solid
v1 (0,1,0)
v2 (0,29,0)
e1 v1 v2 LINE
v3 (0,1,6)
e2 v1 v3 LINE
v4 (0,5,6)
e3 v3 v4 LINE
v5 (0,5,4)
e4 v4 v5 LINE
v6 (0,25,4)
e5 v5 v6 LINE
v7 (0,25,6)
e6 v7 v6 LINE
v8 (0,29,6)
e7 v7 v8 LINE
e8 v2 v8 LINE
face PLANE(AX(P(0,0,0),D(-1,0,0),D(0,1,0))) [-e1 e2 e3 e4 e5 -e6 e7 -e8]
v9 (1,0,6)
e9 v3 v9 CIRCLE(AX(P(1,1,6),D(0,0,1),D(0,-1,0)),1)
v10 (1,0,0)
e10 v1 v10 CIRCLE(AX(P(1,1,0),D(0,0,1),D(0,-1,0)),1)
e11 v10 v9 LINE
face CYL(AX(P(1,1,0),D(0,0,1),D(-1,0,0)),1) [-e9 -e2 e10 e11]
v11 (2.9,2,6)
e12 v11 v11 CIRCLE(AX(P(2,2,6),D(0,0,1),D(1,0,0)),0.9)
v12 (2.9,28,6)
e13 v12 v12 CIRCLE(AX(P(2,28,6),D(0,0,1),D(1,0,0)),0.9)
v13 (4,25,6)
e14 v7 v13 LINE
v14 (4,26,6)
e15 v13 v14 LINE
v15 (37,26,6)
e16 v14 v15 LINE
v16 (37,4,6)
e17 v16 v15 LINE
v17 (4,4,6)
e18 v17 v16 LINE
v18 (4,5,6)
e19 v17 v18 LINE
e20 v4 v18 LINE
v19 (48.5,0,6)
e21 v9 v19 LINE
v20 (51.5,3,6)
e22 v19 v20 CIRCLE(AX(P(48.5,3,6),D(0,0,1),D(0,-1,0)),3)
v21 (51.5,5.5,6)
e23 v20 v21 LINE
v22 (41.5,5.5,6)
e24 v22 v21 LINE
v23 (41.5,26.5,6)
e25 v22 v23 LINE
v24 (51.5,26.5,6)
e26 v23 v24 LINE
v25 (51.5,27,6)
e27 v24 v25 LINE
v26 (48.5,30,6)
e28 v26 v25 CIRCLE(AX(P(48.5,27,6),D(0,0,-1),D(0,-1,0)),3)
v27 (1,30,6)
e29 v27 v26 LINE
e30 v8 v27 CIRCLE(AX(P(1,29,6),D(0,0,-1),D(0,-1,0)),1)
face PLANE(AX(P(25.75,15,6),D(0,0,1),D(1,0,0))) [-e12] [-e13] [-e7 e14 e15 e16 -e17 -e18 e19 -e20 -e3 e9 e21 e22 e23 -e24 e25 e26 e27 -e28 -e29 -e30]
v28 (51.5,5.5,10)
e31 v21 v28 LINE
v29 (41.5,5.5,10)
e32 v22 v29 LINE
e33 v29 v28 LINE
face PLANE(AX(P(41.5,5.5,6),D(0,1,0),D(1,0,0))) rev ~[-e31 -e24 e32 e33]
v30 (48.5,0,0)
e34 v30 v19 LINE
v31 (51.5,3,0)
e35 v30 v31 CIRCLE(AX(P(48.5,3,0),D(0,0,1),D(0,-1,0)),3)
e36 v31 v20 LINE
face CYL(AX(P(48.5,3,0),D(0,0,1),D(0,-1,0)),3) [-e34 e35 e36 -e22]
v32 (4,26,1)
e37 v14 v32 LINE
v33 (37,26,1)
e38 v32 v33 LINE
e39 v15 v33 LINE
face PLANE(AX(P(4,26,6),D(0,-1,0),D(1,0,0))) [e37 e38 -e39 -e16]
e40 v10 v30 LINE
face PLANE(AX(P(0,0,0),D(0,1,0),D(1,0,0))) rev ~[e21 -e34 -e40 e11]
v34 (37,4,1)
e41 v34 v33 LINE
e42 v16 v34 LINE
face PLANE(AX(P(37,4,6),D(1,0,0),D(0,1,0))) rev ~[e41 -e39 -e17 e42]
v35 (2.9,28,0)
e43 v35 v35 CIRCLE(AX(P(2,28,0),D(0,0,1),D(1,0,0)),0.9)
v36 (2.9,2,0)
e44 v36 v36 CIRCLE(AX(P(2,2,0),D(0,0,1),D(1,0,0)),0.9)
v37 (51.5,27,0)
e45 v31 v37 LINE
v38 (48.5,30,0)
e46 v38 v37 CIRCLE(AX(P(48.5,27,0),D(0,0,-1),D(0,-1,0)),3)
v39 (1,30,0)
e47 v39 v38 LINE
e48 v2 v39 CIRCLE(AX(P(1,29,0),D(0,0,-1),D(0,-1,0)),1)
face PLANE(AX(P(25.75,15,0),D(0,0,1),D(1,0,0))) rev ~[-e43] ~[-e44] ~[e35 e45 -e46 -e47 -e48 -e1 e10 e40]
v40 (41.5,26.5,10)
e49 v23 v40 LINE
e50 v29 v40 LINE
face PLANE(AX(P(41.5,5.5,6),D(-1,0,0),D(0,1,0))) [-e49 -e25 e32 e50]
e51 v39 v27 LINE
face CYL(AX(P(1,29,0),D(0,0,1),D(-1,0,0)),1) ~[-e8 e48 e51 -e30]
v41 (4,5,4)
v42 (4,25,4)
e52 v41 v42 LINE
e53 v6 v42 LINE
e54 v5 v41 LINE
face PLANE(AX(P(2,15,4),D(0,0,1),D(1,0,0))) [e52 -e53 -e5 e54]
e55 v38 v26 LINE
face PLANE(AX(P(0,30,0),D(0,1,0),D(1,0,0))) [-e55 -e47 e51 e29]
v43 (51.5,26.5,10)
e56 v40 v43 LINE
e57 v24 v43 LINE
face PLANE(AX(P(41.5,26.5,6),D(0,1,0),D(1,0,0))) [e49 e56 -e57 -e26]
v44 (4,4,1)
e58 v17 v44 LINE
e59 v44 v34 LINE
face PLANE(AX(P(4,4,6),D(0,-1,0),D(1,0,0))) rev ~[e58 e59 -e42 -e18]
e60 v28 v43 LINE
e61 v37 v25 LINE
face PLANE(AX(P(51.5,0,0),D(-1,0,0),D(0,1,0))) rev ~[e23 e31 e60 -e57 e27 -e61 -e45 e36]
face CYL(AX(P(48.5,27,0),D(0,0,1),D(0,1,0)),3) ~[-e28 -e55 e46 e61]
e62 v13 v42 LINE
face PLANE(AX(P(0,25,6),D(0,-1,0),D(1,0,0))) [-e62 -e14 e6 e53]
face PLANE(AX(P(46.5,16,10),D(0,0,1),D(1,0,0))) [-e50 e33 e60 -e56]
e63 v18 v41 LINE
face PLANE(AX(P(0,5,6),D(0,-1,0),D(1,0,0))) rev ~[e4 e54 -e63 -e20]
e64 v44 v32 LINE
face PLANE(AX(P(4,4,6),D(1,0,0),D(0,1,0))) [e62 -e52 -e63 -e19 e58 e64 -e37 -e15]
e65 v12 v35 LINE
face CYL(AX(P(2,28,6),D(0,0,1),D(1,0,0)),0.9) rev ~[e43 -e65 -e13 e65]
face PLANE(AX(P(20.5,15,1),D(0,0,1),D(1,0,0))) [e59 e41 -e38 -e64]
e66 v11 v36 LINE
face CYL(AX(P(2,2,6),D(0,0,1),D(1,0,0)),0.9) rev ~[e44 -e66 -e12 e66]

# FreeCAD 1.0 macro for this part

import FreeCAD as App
import Part
import Sketcher

V = App.Vector
Q = App.Units.Quantity


def edges_at(feature, points):
    """Names of the edges that pass closest to the given points."""
    edges = feature.Shape.Edges
    near = lambda p: min(range(len(edges)), key=lambda i: edges[i].distToShape(Part.Vertex(*p))[0])
    return sorted({f"Edge{near(p) + 1}" for p in points})

doc = App.newDocument("Part")
body = doc.addObject("PartDesign::Body", "Body")

sketch1 = body.newObject("Sketcher::SketchObject", "Sketch")
sketch1.AttachmentSupport = (doc.getObject("XY_Plane"), [""])
sketch1.MapMode = "FlatFace"
sketch1.addGeometry([
    Part.LineSegment(V(0, 30, 0), V(0, 0, 0)),
    Part.LineSegment(V(0, 0, 0), V(52, 0, 0)),
    Part.LineSegment(V(52, 0, 0), V(52, 30, 0)),
    Part.LineSegment(V(52, 30, 0), V(0, 30, 0)),
], False)
sketch1.addConstraint([
    Sketcher.Constraint("Coincident", 0, 2, 1, 1),
    Sketcher.Constraint("Coincident", 1, 2, 2, 1),
    Sketcher.Constraint("Coincident", 2, 2, 3, 1),
    Sketcher.Constraint("Coincident", 3, 2, 0, 1),
    Sketcher.Constraint("Vertical", 0),
    Sketcher.Constraint("Horizontal", 1),
    Sketcher.Constraint("Vertical", 2),
    Sketcher.Constraint("Horizontal", 3),
    Sketcher.Constraint("Coincident", 0, 2, -1, 1),
    Sketcher.Constraint("DistanceY", 0, 2, 0, 1, Q("30 mm")),
    Sketcher.Constraint("DistanceX", 1, 1, 1, 2, Q("51.5 mm")),
])
pad1 = body.newObject("PartDesign::Pad", "Pad")
pad1.Profile = sketch1
pad1.Length = 6

sketch2 = body.newObject("Sketcher::SketchObject", "Sketch001")
sketch2.AttachmentSupport = (doc.getObject("XY_Plane"), [""])
sketch2.MapMode = "FlatFace"
sketch2.AttachmentOffset = App.Placement(V(0, 0, 6), App.Rotation())
sketch2.addGeometry([
    Part.LineSegment(V(4, 26, 0), V(4, 4, 0)),
    Part.LineSegment(V(4, 4, 0), V(37, 4, 0)),
    Part.LineSegment(V(37, 4, 0), V(37, 26, 0)),
    Part.LineSegment(V(37, 26, 0), V(4, 26, 0)),
], False)
sketch2.addConstraint([
    Sketcher.Constraint("Coincident", 0, 2, 1, 1),
    Sketcher.Constraint("Coincident", 1, 2, 2, 1),
    Sketcher.Constraint("Coincident", 2, 2, 3, 1),
    Sketcher.Constraint("Coincident", 3, 2, 0, 1),
    Sketcher.Constraint("Vertical", 0),
    Sketcher.Constraint("Horizontal", 1),
    Sketcher.Constraint("Vertical", 2),
    Sketcher.Constraint("Horizontal", 3),
    Sketcher.Constraint("DistanceX", 1, 1, 1, 2, Q("33 mm")),
    Sketcher.Constraint("DistanceY", 0, 2, 0, 1, Q("22 mm")),
    Sketcher.Constraint("DistanceX", -1, 1, 0, 2, Q("4 mm")),
    Sketcher.Constraint("DistanceY", -1, 1, 0, 2, Q("4 mm")),
])
pocket1 = body.newObject("PartDesign::Pocket", "Pocket")
pocket1.Profile = sketch2
pocket1.Length = 5

sketch3 = body.newObject("Sketcher::SketchObject", "Sketch002")
sketch3.AttachmentSupport = (doc.getObject("XY_Plane"), [""])
sketch3.MapMode = "FlatFace"
sketch3.AttachmentOffset = App.Placement(V(0, 0, 6), App.Rotation())
sketch3.addGeometry([
    Part.Circle(V(2, 28, 0), V(0, 0, 1), 0.9),
    Part.Circle(V(2, 2, 0), V(0, 0, 1), 0.9),
], False)
sketch3.addConstraint([
    Sketcher.Constraint("Equal", 0, 1),
    Sketcher.Constraint("Vertical", 0, 3, 1, 3),
    Sketcher.Constraint("Diameter", 0, Q("1.8 mm")),
    Sketcher.Constraint("DistanceX", -1, 1, 0, 3, Q("2 mm")),
    Sketcher.Constraint("DistanceY", -1, 1, 0, 3, Q("28 mm")),
    Sketcher.Constraint("DistanceY", -1, 1, 1, 3, Q("2 mm")),
])
pocket2 = body.newObject("PartDesign::Pocket", "Pocket001")
pocket2.Profile = sketch3
pocket2.Type = "ThroughAll"

sketch4 = body.newObject("Sketcher::SketchObject", "Sketch003")
sketch4.AttachmentSupport = (doc.getObject("XY_Plane"), [""])
sketch4.MapMode = "FlatFace"
sketch4.AttachmentOffset = App.Placement(V(0, 0, 6), App.Rotation())
sketch4.addGeometry([
    Part.LineSegment(V(42, 26, 0), V(42, 6, 0)),
    Part.LineSegment(V(42, 6, 0), V(52, 6, 0)),
    Part.LineSegment(V(52, 6, 0), V(52, 26, 0)),
    Part.LineSegment(V(52, 26, 0), V(42, 26, 0)),
], False)
sketch4.addConstraint([
    Sketcher.Constraint("Coincident", 0, 2, 1, 1),
    Sketcher.Constraint("Coincident", 1, 2, 2, 1),
    Sketcher.Constraint("Coincident", 2, 2, 3, 1),
    Sketcher.Constraint("Coincident", 3, 2, 0, 1),
    Sketcher.Constraint("Vertical", 0),
    Sketcher.Constraint("Horizontal", 1),
    Sketcher.Constraint("Vertical", 2),
    Sketcher.Constraint("Horizontal", 3),
    Sketcher.Constraint("DistanceX", 1, 1, 1, 2, Q("10 mm")),
    Sketcher.Constraint("DistanceY", 0, 2, 0, 1, Q("21 mm")),
    Sketcher.Constraint("DistanceX", -1, 1, 0, 2, Q("41.5 mm")),
    Sketcher.Constraint("DistanceY", -1, 1, 0, 2, Q("5.5 mm")),
])
pad2 = body.newObject("PartDesign::Pad", "Pad001")
pad2.Profile = sketch4
pad2.Length = 4

sketch5 = body.newObject("Sketcher::SketchObject", "Sketch004")
sketch5.AttachmentSupport = (doc.getObject("XY_Plane"), [""])
sketch5.MapMode = "FlatFace"
sketch5.AttachmentOffset = App.Placement(V(0, 0, 6), App.Rotation())
sketch5.addGeometry([
    Part.LineSegment(V(0, 25, 0), V(0, 5, 0)),
    Part.LineSegment(V(0, 5, 0), V(4, 5, 0)),
    Part.LineSegment(V(4, 5, 0), V(4, 25, 0)),
    Part.LineSegment(V(4, 25, 0), V(0, 25, 0)),
], False)
sketch5.addConstraint([
    Sketcher.Constraint("Coincident", 0, 2, 1, 1),
    Sketcher.Constraint("Coincident", 1, 2, 2, 1),
    Sketcher.Constraint("Coincident", 2, 2, 3, 1),
    Sketcher.Constraint("Coincident", 3, 2, 0, 1),
    Sketcher.Constraint("Vertical", 0),
    Sketcher.Constraint("Horizontal", 1),
    Sketcher.Constraint("Vertical", 2),
    Sketcher.Constraint("Horizontal", 3),
    Sketcher.Constraint("PointOnObject", 0, 2, -2),
    Sketcher.Constraint("DistanceX", 1, 1, 1, 2, Q("4 mm")),
    Sketcher.Constraint("DistanceY", 0, 2, 0, 1, Q("20 mm")),
    Sketcher.Constraint("DistanceY", -1, 1, 0, 2, Q("5 mm")),
])
pocket3 = body.newObject("PartDesign::Pocket", "Pocket002")
pocket3.Profile = sketch5
pocket3.Length = 2
doc.recompute()

fillet = body.newObject("PartDesign::Fillet", "Fillet")
fillet.Base = (pocket3, edges_at(pocket3, [(0, 30, 3), (0, 0, 3)]))
fillet.Radius = 1
doc.recompute()

fillet2 = body.newObject("PartDesign::Fillet", "Fillet001")
fillet2.Base = (fillet, edges_at(fillet, [(51.5, 30, 3), (51.5, 0, 3)]))
fillet2.Radius = 3

doc.recompute()
